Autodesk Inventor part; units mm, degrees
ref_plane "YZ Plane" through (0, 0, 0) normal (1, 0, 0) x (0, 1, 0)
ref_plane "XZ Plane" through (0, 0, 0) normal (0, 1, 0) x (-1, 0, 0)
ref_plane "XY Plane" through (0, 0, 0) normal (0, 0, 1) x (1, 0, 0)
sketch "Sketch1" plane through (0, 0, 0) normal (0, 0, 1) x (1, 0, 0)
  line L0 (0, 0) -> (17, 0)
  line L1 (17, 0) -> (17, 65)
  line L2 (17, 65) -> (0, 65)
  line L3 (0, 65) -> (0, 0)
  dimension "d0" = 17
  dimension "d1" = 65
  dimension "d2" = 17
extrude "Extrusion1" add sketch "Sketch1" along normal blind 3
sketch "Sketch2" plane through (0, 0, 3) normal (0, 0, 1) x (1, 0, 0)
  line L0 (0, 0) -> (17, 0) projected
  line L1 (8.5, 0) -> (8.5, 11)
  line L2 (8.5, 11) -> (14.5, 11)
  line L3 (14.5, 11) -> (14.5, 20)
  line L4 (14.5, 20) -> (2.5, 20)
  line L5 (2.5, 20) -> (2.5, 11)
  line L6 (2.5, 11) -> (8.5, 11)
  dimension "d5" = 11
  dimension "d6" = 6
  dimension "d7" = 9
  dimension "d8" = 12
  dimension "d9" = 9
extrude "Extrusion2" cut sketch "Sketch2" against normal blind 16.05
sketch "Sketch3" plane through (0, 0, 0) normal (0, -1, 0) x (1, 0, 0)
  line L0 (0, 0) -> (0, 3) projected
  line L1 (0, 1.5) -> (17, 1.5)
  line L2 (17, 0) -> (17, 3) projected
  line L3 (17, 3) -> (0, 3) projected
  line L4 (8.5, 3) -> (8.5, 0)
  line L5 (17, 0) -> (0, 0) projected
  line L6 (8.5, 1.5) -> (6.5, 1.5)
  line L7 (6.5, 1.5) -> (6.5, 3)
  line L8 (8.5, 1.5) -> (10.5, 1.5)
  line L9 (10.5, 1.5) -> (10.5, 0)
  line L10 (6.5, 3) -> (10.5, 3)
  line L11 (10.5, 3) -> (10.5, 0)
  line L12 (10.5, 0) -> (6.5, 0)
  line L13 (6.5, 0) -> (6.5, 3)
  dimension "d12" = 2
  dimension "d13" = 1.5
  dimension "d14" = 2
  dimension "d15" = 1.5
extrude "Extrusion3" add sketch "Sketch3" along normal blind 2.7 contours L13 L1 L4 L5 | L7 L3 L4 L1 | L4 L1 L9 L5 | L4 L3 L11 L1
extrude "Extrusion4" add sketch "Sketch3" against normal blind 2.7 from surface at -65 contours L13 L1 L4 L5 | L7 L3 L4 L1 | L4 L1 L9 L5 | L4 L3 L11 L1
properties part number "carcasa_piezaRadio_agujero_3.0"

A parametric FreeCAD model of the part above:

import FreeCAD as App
import Part
import Sketcher
from FreeCAD import Vector
Q = App.Units.Quantity


def add_polygon(sketch, points):
    """Adds a closed chain of lines whose ends are joined by coincident constraints."""
    first, n = sketch.GeometryCount, len(points)
    for a, b in zip(points, points[1:] + points[:1]):
        sketch.addGeometry(Part.LineSegment(App.Vector(*a, 0), App.Vector(*b, 0)), False)
    for i in range(n):
        sketch.addConstraint(Sketcher.Constraint("Coincident", first + i, 2, first + (i + 1) % n, 1))

doc = App.newDocument("Part")
body = doc.addObject("PartDesign::Body", "Body")

sketch1 = body.newObject("Sketcher::SketchObject", "Sketch")
sketch1.AttachmentSupport = (doc.getObject("XY_Plane"), [""])
sketch1.MapMode = "FlatFace"
add_polygon(sketch1, [(0, 65), (0, 0), (17, 0), (17, 65)])
sketch1.addConstraint(Sketcher.Constraint("Vertical", 0))
sketch1.addConstraint(Sketcher.Constraint("Horizontal", 1))
sketch1.addConstraint(Sketcher.Constraint("Vertical", 2))
sketch1.addConstraint(Sketcher.Constraint("Horizontal", 3))
sketch1.addConstraint(Sketcher.Constraint("Coincident", 0, 2, -1, 1))
sketch1.addConstraint(Sketcher.Constraint("DistanceX", 1, 1, 1, 2, Q("17 mm")))
sketch1.addConstraint(Sketcher.Constraint("DistanceY", 0, 2, 0, 1, Q("65 mm")))
pad1 = body.newObject("PartDesign::Pad", "Pad")
pad1.Profile = sketch1
pad1.Length = 3

sketch2 = body.newObject("Sketcher::SketchObject", "Sketch001")
sketch2.AttachmentSupport = (doc.getObject("XY_Plane"), [""])
sketch2.MapMode = "FlatFace"
sketch2.AttachmentOffset = App.Placement(Vector(0, 0, 3), App.Rotation())
add_polygon(sketch2, [(2, 11), (14, 11), (14, 20), (2, 20)])
sketch2.addConstraint(Sketcher.Constraint("Horizontal", 0))
sketch2.addConstraint(Sketcher.Constraint("Vertical", 1))
sketch2.addConstraint(Sketcher.Constraint("Horizontal", 2))
sketch2.addConstraint(Sketcher.Constraint("Vertical", 3))
sketch2.addConstraint(Sketcher.Constraint("DistanceX", 0, 1, 0, 2, Q("12 mm")))
sketch2.addConstraint(Sketcher.Constraint("DistanceY", 1, 1, 1, 2, Q("9 mm")))
sketch2.addConstraint(Sketcher.Constraint("DistanceY", -1, 1, 0, 2, Q("11 mm")))
sketch2.addConstraint(Sketcher.Constraint("DistanceX", -1, 1, 0, 2, Q("14.5 mm")))
pocket1 = body.newObject("PartDesign::Pocket", "Pocket")
pocket1.Profile = sketch2
pocket1.Length = 16.05

sketch3 = body.newObject("Sketcher::SketchObject", "Sketch002")
sketch3.AttachmentSupport = (doc.getObject("XZ_Plane"), [""])
sketch3.MapMode = "FlatFace"
add_polygon(sketch3, [(6.5, 0), (10.5, 0), (10.5, 3), (6.5, 3)])
sketch3.addConstraint(Sketcher.Constraint("Horizontal", 0))
sketch3.addConstraint(Sketcher.Constraint("Vertical", 1))
sketch3.addConstraint(Sketcher.Constraint("Horizontal", 2))
sketch3.addConstraint(Sketcher.Constraint("Vertical", 3))
sketch3.addConstraint(Sketcher.Constraint("PointOnObject", 0, 2, -1))
sketch3.addConstraint(Sketcher.Constraint("DistanceX", 0, 1, 0, 2, Q("4 mm")))
sketch3.addConstraint(Sketcher.Constraint("DistanceY", 1, 1, 1, 2, Q("3 mm")))
sketch3.addConstraint(Sketcher.Constraint("DistanceX", -1, 1, 0, 2, Q("10.5 mm")))
pad2 = body.newObject("PartDesign::Pad", "Pad001")
pad2.Profile = sketch3
pad2.Length = 2.7

sketch4 = body.newObject("Sketcher::SketchObject", "Sketch003")
sketch4.AttachmentSupport = (doc.getObject("XZ_Plane"), [""])
sketch4.MapMode = "FlatFace"
sketch4.AttachmentOffset = App.Placement(Vector(0, 0, -65), App.Rotation())
add_polygon(sketch4, [(6.5, 0), (10.5, 0), (10.5, 3), (6.5, 3)])
sketch4.addConstraint(Sketcher.Constraint("Horizontal", 0))
sketch4.addConstraint(Sketcher.Constraint("Vertical", 1))
sketch4.addConstraint(Sketcher.Constraint("Horizontal", 2))
sketch4.addConstraint(Sketcher.Constraint("Vertical", 3))
sketch4.addConstraint(Sketcher.Constraint("PointOnObject", 0, 2, -1))
sketch4.addConstraint(Sketcher.Constraint("DistanceX", 0, 1, 0, 2, Q("4 mm")))
sketch4.addConstraint(Sketcher.Constraint("DistanceY", 1, 1, 1, 2, Q("3 mm")))
sketch4.addConstraint(Sketcher.Constraint("DistanceX", -1, 1, 0, 2, Q("10.5 mm")))
pad3 = body.newObject("PartDesign::Pad", "Pad002")
pad3.Profile = sketch4
pad3.Length = 2.7
pad3.Reversed = True

doc.recompute()
